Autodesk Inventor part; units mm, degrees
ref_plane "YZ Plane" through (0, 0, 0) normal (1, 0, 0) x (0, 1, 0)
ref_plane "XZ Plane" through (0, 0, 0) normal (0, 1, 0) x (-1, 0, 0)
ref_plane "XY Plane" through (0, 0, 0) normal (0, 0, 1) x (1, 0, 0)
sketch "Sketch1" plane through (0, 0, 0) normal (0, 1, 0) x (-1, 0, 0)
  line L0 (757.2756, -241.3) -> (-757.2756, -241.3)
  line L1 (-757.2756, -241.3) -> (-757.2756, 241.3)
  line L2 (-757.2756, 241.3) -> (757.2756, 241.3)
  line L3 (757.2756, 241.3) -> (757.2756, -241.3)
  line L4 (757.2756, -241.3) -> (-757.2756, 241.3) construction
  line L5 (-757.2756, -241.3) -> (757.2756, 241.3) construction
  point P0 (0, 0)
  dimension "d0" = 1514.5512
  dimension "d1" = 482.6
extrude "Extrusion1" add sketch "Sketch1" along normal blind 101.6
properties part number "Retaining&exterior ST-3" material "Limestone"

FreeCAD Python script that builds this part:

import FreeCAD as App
import Part
import Sketcher
from FreeCAD import Vector
Q = App.Units.Quantity

doc = App.newDocument("Part")
body = doc.addObject("PartDesign::Body", "Body")

sketch1 = doc.addObject("Sketcher::SketchObject", "Sketch")
body.addObject(sketch1)
sketch1.AttachmentSupport = (doc.XZ_Plane, [""])
sketch1.MapMode = "FlatFace"
sketch1.addGeometry([
    Part.LineSegment(Vector(757, -241, 0), Vector(-757, -241, 0)),
    Part.LineSegment(Vector(-757, -241, 0), Vector(-757, 241, 0)),
    Part.LineSegment(Vector(-757, 241, 0), Vector(757, 241, 0)),
    Part.LineSegment(Vector(757, 241, 0), Vector(757, -241, 0)),
], False)
sketch1.addConstraint([
    Sketcher.Constraint("Coincident", 0, 2, 1, 1),
    Sketcher.Constraint("Coincident", 1, 2, 2, 1),
    Sketcher.Constraint("Coincident", 2, 2, 3, 1),
    Sketcher.Constraint("Coincident", 3, 2, 0, 1),
    Sketcher.Constraint("Horizontal", 0),
    Sketcher.Constraint("Vertical", 1),
    Sketcher.Constraint("Horizontal", 2),
    Sketcher.Constraint("Vertical", 3),
    Sketcher.Constraint("Symmetric", 0, 2, 2, 2, -1, 1),
    Sketcher.Constraint("DistanceY", 1, 1, 1, 2, Q("19 in")),
    Sketcher.Constraint("DistanceX", 0, 2, 0, 1, Q("59.628 in")),
])
pad1 = doc.addObject("PartDesign::Pad", "Pad")
body.addObject(pad1)
pad1.Profile = sketch1
pad1.Length = Q("4 in")
pad1.Reversed = True

doc.recompute()
